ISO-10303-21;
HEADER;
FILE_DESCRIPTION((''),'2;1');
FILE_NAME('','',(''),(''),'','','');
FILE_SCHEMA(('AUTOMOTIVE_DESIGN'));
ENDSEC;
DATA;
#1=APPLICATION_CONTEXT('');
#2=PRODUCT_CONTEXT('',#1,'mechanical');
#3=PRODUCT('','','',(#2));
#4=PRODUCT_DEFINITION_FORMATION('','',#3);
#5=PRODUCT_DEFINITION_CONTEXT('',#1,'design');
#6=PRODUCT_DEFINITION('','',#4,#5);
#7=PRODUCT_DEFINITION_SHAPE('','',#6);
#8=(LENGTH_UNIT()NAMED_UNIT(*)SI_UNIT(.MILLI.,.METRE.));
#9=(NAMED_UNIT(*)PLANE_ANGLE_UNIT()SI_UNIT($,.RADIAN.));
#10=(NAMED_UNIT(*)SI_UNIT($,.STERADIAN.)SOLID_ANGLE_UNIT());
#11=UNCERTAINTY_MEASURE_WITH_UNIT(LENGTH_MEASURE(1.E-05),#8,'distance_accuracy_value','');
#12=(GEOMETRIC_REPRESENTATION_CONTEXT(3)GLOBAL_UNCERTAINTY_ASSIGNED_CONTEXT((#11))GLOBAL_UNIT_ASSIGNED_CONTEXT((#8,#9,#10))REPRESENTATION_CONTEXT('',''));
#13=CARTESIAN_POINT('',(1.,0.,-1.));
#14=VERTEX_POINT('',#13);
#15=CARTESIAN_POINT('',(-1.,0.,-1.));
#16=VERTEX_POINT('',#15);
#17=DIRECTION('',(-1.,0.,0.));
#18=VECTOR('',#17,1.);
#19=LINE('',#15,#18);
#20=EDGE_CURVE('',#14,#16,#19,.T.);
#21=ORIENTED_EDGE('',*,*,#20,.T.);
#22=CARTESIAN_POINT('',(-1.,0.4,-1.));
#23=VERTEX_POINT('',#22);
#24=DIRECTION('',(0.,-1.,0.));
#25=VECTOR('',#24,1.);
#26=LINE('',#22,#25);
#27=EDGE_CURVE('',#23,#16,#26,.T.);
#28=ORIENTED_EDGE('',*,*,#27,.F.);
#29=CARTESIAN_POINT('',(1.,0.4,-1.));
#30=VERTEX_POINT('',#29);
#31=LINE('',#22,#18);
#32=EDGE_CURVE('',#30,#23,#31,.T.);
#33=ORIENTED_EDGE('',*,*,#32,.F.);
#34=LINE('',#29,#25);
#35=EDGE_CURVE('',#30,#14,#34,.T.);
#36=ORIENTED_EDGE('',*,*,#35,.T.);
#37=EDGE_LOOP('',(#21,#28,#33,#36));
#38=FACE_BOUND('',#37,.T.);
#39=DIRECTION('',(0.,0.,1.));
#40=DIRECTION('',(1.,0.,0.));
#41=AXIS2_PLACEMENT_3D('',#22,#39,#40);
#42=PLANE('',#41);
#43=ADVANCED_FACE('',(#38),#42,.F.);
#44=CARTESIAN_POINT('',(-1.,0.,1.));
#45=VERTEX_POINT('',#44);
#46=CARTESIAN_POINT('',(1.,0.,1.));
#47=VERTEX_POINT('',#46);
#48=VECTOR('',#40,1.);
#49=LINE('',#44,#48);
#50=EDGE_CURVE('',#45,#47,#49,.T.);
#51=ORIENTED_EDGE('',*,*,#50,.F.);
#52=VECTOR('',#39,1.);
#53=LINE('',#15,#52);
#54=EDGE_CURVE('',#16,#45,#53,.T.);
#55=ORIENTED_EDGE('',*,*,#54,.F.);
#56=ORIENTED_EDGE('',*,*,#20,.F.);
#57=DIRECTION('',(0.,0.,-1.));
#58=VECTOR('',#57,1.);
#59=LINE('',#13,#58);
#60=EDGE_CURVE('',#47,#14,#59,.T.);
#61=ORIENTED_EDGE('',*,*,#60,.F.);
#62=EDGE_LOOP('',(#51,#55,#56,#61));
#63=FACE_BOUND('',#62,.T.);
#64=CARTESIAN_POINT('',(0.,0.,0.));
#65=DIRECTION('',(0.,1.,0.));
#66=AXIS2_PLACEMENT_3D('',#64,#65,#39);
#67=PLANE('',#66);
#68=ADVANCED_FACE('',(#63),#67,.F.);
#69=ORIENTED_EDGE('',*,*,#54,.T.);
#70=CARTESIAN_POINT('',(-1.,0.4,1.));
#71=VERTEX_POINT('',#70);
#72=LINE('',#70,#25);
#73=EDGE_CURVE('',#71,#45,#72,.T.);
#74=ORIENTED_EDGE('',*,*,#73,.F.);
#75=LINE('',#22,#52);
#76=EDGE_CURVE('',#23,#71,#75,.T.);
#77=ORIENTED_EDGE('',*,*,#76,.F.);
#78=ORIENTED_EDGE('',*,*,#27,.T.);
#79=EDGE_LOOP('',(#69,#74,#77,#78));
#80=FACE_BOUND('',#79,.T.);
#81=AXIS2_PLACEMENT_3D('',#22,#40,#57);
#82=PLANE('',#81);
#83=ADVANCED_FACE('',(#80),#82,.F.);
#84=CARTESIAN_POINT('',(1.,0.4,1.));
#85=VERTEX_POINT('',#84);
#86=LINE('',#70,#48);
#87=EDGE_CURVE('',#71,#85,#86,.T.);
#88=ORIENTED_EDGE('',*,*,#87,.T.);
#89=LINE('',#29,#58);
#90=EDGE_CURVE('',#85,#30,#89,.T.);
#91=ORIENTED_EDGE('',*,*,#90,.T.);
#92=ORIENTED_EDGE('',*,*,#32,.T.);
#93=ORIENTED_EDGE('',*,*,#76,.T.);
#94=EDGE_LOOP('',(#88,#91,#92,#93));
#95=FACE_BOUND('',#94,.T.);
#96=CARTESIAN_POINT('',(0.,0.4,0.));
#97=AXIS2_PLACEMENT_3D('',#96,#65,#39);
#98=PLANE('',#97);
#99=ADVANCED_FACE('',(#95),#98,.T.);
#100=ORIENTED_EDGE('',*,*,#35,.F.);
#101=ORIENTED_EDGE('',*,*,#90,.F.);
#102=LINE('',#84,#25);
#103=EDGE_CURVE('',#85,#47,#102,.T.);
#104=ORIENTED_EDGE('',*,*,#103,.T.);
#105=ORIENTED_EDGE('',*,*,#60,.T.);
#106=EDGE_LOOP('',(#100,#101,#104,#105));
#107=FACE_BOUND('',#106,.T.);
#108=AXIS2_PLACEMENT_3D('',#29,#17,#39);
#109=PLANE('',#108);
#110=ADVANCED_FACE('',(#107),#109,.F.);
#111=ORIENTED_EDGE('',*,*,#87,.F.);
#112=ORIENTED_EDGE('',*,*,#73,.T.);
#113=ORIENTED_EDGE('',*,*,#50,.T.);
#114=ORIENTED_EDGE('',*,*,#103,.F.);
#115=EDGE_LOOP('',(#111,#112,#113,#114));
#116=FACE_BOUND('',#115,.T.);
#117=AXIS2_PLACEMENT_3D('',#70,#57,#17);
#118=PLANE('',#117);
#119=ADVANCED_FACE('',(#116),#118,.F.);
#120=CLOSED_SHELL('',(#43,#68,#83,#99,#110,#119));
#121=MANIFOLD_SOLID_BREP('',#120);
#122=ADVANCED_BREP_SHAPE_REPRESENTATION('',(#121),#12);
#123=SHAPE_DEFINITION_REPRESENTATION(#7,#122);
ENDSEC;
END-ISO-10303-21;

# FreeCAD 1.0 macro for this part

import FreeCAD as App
import Part
import Sketcher
from FreeCAD import Vector

doc = App.newDocument("Part")
params = doc.addObject("Spreadsheet::Sheet", "Params")
for row, (alias, value) in enumerate([
    ("sketch1_width", "2 mm"),
    ("pad1_length", "0.4 mm"),
], start=1):
    params.set(f"A{row}", alias)
    params.set(f"B{row}", "=" + value)
    params.setAlias(f"B{row}", alias)

body = doc.addObject("PartDesign::Body", "Body")

# Sketch on XZ plane
sketch1 = body.newObject("Sketcher::SketchObject", "Sketch")
sketch1.AttachmentSupport = (doc.getObject("XZ_Plane"), [""])
sketch1.MapMode = "FlatFace"
sketch1.addGeometry(Part.LineSegment(Vector(-1, -1, 0), Vector(-1, 1, 0)), False)
sketch1.addGeometry(Part.LineSegment(Vector(-1, 1, 0), Vector(1, 1, 0)), False)
sketch1.addGeometry(Part.LineSegment(Vector(1, 1, 0), Vector(1, -1, 0)), False)
sketch1.addGeometry(Part.LineSegment(Vector(1, -1, 0), Vector(-1, -1, 0)), False)
sketch1.addConstraint(Sketcher.Constraint("Coincident", 0, 2, 1, 1))
sketch1.addConstraint(Sketcher.Constraint("Coincident", 1, 2, 2, 1))
sketch1.addConstraint(Sketcher.Constraint("Coincident", 2, 2, 3, 1))
sketch1.addConstraint(Sketcher.Constraint("Coincident", 3, 2, 0, 1))
sketch1.addConstraint(Sketcher.Constraint("Vertical", 0))
sketch1.addConstraint(Sketcher.Constraint("Horizontal", 1))
sketch1.addConstraint(Sketcher.Constraint("Vertical", 2))
sketch1.addConstraint(Sketcher.Constraint("Horizontal", 3))
sketch1.addConstraint(Sketcher.Constraint("Symmetric", 0, 2, 2, 2, -1, 1))
sketch1.addConstraint(Sketcher.Constraint("Equal", 3, 0))
sketch1.addConstraint(Sketcher.Constraint("DistanceX", 1, 1, 1, 2, 2.0))
sketch1.setExpression("Constraints[10]", "Params.sketch1_width")
pad1 = body.newObject("PartDesign::Pad", "Pad")
pad1.Profile = sketch1
pad1.setExpression("Length", "Params.pad1_length")
pad1.Reversed = True

doc.recompute()
